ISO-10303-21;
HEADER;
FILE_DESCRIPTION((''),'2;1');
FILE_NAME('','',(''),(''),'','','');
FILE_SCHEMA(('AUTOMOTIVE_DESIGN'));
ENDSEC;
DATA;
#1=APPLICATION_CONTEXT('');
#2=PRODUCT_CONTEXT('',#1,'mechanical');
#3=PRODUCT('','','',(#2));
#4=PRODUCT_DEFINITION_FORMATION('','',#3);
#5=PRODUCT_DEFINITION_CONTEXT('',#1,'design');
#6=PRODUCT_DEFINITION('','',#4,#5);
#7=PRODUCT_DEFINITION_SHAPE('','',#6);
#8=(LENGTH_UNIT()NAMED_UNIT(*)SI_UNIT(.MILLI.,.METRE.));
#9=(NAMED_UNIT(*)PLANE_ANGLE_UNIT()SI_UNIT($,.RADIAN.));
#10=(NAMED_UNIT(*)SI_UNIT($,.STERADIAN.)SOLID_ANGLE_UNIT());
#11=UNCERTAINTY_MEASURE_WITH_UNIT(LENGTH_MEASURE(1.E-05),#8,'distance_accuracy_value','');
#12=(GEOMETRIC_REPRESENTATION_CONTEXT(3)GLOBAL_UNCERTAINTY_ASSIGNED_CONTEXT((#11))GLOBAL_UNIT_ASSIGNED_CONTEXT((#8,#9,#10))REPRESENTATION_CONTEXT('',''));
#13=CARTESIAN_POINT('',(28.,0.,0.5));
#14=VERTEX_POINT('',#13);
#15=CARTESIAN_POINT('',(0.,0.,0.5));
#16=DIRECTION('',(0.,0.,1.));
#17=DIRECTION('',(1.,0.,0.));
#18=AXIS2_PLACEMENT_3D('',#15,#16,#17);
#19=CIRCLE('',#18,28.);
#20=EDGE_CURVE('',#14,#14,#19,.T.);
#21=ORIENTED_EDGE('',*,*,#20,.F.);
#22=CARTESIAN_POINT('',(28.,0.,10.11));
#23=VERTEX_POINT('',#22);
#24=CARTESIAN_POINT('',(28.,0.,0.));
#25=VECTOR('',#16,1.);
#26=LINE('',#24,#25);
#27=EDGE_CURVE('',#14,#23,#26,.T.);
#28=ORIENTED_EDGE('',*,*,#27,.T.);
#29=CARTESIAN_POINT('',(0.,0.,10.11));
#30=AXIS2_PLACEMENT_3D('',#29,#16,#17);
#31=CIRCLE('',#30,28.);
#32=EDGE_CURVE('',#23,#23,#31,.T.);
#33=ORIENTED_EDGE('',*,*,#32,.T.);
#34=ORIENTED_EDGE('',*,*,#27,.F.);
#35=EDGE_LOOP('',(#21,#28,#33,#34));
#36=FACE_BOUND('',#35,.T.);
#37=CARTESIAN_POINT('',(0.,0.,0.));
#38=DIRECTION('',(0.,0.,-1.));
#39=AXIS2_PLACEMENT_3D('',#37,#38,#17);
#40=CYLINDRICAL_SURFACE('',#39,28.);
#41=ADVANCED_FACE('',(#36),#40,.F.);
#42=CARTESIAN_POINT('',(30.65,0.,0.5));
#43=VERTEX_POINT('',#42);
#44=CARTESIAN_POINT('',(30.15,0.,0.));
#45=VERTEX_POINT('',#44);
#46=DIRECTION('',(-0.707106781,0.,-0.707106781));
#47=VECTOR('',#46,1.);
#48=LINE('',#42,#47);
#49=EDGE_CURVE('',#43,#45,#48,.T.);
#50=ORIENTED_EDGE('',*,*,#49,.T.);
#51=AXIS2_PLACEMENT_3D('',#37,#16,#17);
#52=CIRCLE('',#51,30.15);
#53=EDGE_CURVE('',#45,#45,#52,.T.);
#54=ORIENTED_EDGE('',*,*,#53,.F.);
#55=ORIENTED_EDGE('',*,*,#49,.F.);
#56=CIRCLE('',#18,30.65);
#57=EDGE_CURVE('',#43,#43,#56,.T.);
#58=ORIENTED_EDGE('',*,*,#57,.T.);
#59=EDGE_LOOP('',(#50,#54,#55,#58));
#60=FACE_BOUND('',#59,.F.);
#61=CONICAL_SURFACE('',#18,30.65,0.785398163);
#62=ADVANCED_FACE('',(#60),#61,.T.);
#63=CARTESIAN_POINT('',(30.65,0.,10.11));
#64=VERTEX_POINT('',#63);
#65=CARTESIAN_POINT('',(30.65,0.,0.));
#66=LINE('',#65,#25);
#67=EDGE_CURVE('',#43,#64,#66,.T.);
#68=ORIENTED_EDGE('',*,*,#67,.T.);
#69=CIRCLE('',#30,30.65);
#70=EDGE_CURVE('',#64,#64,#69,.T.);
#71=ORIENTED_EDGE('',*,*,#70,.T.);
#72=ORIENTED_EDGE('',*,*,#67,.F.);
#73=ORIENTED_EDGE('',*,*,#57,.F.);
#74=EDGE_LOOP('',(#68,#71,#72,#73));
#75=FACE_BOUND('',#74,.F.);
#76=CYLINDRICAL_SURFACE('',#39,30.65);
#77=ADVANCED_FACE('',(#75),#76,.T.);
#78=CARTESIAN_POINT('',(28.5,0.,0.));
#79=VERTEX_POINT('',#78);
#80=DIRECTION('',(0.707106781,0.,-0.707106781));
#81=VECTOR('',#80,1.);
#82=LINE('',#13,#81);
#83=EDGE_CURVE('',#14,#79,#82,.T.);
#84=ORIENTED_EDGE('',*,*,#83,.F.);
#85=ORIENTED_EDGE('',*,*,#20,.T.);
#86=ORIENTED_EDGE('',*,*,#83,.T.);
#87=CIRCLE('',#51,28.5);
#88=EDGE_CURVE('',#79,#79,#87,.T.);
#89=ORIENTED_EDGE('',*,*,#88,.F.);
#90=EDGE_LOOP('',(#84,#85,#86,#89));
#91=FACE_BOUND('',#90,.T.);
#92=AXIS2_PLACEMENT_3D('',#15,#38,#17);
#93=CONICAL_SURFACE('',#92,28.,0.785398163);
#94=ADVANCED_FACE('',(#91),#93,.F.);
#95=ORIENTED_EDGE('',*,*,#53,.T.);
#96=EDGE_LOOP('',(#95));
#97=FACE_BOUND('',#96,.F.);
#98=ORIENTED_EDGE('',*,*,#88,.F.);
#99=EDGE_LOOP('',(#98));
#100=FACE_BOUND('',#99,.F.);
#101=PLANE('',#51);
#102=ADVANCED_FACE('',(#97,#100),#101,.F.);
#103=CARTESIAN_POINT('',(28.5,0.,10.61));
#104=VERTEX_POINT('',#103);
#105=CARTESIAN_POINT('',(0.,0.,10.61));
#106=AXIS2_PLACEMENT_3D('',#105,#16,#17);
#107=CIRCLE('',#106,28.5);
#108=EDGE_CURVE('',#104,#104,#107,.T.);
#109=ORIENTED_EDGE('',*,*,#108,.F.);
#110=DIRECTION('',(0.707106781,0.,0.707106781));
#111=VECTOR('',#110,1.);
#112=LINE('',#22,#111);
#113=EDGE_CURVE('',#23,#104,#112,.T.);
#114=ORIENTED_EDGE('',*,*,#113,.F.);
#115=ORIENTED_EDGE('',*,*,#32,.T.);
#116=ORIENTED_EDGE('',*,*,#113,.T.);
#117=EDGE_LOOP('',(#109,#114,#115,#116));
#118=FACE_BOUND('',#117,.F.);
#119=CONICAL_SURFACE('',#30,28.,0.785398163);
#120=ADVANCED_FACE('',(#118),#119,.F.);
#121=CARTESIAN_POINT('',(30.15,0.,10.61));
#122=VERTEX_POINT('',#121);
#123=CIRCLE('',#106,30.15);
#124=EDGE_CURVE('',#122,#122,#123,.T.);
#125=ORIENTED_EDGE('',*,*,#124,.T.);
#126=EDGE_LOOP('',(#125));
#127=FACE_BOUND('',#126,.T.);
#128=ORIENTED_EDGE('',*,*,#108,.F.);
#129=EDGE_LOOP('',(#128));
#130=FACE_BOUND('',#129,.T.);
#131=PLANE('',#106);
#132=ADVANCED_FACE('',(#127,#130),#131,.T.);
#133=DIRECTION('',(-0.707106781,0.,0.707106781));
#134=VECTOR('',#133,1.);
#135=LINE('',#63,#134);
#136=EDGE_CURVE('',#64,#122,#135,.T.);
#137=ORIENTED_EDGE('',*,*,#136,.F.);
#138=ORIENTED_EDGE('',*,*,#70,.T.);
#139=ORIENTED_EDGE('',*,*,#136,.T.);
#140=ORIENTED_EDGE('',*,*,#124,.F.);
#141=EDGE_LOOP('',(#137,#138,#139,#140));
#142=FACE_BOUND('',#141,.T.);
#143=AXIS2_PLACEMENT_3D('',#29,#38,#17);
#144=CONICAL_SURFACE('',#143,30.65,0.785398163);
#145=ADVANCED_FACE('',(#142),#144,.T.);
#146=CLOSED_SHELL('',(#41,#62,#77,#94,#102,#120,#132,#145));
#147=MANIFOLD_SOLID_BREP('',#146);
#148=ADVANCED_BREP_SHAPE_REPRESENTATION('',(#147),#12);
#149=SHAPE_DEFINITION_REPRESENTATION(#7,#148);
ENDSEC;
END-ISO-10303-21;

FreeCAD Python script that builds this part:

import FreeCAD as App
import Part
import Sketcher
from FreeCAD import Vector


def edges_at(feature, points):
    """Names of the edges that pass closest to the given points."""
    edges = feature.Shape.Edges
    near = lambda p: min(range(len(edges)), key=lambda i: edges[i].distToShape(Part.Vertex(*p))[0])
    return sorted({f"Edge{near(p) + 1}" for p in points})

doc = App.newDocument("Part")
body = doc.addObject("PartDesign::Body", "Body")

sketch1 = body.newObject("Sketcher::SketchObject", "Sketch")
sketch1.AttachmentSupport = (doc.getObject("XY_Plane"), [""])
sketch1.MapMode = "FlatFace"
sketch1.addGeometry(Part.Circle(Vector(0, 0, 0), Vector(0, 0, 1), 31), False)
sketch1.addGeometry(Part.Circle(Vector(0, 0, 0), Vector(0, 0, 1), 28), False)
sketch1.addConstraint(Sketcher.Constraint("Coincident", 0, 3, -1, 1))
sketch1.addConstraint(Sketcher.Constraint("Coincident", 1, 3, -1, 1))
sketch1.addConstraint(Sketcher.Constraint("Diameter", 1, 56.0))
sketch1.addConstraint(Sketcher.Constraint("Diameter", 0, 61.3))
pad1 = body.newObject("PartDesign::Pad", "Pad")
pad1.Profile = sketch1
pad1.Length = 10.61
doc.recompute()

chamfer = body.newObject("PartDesign::Chamfer", "Chamfer")
chamfer.Base = (pad1, edges_at(pad1, [
    (-28, 0, 10.61),
    (-28, 0, 0),
    (-30.65, 0, 10.61),
    (-30.65, 0, 0),
]))
chamfer.Size = 0.5

doc.recompute()
